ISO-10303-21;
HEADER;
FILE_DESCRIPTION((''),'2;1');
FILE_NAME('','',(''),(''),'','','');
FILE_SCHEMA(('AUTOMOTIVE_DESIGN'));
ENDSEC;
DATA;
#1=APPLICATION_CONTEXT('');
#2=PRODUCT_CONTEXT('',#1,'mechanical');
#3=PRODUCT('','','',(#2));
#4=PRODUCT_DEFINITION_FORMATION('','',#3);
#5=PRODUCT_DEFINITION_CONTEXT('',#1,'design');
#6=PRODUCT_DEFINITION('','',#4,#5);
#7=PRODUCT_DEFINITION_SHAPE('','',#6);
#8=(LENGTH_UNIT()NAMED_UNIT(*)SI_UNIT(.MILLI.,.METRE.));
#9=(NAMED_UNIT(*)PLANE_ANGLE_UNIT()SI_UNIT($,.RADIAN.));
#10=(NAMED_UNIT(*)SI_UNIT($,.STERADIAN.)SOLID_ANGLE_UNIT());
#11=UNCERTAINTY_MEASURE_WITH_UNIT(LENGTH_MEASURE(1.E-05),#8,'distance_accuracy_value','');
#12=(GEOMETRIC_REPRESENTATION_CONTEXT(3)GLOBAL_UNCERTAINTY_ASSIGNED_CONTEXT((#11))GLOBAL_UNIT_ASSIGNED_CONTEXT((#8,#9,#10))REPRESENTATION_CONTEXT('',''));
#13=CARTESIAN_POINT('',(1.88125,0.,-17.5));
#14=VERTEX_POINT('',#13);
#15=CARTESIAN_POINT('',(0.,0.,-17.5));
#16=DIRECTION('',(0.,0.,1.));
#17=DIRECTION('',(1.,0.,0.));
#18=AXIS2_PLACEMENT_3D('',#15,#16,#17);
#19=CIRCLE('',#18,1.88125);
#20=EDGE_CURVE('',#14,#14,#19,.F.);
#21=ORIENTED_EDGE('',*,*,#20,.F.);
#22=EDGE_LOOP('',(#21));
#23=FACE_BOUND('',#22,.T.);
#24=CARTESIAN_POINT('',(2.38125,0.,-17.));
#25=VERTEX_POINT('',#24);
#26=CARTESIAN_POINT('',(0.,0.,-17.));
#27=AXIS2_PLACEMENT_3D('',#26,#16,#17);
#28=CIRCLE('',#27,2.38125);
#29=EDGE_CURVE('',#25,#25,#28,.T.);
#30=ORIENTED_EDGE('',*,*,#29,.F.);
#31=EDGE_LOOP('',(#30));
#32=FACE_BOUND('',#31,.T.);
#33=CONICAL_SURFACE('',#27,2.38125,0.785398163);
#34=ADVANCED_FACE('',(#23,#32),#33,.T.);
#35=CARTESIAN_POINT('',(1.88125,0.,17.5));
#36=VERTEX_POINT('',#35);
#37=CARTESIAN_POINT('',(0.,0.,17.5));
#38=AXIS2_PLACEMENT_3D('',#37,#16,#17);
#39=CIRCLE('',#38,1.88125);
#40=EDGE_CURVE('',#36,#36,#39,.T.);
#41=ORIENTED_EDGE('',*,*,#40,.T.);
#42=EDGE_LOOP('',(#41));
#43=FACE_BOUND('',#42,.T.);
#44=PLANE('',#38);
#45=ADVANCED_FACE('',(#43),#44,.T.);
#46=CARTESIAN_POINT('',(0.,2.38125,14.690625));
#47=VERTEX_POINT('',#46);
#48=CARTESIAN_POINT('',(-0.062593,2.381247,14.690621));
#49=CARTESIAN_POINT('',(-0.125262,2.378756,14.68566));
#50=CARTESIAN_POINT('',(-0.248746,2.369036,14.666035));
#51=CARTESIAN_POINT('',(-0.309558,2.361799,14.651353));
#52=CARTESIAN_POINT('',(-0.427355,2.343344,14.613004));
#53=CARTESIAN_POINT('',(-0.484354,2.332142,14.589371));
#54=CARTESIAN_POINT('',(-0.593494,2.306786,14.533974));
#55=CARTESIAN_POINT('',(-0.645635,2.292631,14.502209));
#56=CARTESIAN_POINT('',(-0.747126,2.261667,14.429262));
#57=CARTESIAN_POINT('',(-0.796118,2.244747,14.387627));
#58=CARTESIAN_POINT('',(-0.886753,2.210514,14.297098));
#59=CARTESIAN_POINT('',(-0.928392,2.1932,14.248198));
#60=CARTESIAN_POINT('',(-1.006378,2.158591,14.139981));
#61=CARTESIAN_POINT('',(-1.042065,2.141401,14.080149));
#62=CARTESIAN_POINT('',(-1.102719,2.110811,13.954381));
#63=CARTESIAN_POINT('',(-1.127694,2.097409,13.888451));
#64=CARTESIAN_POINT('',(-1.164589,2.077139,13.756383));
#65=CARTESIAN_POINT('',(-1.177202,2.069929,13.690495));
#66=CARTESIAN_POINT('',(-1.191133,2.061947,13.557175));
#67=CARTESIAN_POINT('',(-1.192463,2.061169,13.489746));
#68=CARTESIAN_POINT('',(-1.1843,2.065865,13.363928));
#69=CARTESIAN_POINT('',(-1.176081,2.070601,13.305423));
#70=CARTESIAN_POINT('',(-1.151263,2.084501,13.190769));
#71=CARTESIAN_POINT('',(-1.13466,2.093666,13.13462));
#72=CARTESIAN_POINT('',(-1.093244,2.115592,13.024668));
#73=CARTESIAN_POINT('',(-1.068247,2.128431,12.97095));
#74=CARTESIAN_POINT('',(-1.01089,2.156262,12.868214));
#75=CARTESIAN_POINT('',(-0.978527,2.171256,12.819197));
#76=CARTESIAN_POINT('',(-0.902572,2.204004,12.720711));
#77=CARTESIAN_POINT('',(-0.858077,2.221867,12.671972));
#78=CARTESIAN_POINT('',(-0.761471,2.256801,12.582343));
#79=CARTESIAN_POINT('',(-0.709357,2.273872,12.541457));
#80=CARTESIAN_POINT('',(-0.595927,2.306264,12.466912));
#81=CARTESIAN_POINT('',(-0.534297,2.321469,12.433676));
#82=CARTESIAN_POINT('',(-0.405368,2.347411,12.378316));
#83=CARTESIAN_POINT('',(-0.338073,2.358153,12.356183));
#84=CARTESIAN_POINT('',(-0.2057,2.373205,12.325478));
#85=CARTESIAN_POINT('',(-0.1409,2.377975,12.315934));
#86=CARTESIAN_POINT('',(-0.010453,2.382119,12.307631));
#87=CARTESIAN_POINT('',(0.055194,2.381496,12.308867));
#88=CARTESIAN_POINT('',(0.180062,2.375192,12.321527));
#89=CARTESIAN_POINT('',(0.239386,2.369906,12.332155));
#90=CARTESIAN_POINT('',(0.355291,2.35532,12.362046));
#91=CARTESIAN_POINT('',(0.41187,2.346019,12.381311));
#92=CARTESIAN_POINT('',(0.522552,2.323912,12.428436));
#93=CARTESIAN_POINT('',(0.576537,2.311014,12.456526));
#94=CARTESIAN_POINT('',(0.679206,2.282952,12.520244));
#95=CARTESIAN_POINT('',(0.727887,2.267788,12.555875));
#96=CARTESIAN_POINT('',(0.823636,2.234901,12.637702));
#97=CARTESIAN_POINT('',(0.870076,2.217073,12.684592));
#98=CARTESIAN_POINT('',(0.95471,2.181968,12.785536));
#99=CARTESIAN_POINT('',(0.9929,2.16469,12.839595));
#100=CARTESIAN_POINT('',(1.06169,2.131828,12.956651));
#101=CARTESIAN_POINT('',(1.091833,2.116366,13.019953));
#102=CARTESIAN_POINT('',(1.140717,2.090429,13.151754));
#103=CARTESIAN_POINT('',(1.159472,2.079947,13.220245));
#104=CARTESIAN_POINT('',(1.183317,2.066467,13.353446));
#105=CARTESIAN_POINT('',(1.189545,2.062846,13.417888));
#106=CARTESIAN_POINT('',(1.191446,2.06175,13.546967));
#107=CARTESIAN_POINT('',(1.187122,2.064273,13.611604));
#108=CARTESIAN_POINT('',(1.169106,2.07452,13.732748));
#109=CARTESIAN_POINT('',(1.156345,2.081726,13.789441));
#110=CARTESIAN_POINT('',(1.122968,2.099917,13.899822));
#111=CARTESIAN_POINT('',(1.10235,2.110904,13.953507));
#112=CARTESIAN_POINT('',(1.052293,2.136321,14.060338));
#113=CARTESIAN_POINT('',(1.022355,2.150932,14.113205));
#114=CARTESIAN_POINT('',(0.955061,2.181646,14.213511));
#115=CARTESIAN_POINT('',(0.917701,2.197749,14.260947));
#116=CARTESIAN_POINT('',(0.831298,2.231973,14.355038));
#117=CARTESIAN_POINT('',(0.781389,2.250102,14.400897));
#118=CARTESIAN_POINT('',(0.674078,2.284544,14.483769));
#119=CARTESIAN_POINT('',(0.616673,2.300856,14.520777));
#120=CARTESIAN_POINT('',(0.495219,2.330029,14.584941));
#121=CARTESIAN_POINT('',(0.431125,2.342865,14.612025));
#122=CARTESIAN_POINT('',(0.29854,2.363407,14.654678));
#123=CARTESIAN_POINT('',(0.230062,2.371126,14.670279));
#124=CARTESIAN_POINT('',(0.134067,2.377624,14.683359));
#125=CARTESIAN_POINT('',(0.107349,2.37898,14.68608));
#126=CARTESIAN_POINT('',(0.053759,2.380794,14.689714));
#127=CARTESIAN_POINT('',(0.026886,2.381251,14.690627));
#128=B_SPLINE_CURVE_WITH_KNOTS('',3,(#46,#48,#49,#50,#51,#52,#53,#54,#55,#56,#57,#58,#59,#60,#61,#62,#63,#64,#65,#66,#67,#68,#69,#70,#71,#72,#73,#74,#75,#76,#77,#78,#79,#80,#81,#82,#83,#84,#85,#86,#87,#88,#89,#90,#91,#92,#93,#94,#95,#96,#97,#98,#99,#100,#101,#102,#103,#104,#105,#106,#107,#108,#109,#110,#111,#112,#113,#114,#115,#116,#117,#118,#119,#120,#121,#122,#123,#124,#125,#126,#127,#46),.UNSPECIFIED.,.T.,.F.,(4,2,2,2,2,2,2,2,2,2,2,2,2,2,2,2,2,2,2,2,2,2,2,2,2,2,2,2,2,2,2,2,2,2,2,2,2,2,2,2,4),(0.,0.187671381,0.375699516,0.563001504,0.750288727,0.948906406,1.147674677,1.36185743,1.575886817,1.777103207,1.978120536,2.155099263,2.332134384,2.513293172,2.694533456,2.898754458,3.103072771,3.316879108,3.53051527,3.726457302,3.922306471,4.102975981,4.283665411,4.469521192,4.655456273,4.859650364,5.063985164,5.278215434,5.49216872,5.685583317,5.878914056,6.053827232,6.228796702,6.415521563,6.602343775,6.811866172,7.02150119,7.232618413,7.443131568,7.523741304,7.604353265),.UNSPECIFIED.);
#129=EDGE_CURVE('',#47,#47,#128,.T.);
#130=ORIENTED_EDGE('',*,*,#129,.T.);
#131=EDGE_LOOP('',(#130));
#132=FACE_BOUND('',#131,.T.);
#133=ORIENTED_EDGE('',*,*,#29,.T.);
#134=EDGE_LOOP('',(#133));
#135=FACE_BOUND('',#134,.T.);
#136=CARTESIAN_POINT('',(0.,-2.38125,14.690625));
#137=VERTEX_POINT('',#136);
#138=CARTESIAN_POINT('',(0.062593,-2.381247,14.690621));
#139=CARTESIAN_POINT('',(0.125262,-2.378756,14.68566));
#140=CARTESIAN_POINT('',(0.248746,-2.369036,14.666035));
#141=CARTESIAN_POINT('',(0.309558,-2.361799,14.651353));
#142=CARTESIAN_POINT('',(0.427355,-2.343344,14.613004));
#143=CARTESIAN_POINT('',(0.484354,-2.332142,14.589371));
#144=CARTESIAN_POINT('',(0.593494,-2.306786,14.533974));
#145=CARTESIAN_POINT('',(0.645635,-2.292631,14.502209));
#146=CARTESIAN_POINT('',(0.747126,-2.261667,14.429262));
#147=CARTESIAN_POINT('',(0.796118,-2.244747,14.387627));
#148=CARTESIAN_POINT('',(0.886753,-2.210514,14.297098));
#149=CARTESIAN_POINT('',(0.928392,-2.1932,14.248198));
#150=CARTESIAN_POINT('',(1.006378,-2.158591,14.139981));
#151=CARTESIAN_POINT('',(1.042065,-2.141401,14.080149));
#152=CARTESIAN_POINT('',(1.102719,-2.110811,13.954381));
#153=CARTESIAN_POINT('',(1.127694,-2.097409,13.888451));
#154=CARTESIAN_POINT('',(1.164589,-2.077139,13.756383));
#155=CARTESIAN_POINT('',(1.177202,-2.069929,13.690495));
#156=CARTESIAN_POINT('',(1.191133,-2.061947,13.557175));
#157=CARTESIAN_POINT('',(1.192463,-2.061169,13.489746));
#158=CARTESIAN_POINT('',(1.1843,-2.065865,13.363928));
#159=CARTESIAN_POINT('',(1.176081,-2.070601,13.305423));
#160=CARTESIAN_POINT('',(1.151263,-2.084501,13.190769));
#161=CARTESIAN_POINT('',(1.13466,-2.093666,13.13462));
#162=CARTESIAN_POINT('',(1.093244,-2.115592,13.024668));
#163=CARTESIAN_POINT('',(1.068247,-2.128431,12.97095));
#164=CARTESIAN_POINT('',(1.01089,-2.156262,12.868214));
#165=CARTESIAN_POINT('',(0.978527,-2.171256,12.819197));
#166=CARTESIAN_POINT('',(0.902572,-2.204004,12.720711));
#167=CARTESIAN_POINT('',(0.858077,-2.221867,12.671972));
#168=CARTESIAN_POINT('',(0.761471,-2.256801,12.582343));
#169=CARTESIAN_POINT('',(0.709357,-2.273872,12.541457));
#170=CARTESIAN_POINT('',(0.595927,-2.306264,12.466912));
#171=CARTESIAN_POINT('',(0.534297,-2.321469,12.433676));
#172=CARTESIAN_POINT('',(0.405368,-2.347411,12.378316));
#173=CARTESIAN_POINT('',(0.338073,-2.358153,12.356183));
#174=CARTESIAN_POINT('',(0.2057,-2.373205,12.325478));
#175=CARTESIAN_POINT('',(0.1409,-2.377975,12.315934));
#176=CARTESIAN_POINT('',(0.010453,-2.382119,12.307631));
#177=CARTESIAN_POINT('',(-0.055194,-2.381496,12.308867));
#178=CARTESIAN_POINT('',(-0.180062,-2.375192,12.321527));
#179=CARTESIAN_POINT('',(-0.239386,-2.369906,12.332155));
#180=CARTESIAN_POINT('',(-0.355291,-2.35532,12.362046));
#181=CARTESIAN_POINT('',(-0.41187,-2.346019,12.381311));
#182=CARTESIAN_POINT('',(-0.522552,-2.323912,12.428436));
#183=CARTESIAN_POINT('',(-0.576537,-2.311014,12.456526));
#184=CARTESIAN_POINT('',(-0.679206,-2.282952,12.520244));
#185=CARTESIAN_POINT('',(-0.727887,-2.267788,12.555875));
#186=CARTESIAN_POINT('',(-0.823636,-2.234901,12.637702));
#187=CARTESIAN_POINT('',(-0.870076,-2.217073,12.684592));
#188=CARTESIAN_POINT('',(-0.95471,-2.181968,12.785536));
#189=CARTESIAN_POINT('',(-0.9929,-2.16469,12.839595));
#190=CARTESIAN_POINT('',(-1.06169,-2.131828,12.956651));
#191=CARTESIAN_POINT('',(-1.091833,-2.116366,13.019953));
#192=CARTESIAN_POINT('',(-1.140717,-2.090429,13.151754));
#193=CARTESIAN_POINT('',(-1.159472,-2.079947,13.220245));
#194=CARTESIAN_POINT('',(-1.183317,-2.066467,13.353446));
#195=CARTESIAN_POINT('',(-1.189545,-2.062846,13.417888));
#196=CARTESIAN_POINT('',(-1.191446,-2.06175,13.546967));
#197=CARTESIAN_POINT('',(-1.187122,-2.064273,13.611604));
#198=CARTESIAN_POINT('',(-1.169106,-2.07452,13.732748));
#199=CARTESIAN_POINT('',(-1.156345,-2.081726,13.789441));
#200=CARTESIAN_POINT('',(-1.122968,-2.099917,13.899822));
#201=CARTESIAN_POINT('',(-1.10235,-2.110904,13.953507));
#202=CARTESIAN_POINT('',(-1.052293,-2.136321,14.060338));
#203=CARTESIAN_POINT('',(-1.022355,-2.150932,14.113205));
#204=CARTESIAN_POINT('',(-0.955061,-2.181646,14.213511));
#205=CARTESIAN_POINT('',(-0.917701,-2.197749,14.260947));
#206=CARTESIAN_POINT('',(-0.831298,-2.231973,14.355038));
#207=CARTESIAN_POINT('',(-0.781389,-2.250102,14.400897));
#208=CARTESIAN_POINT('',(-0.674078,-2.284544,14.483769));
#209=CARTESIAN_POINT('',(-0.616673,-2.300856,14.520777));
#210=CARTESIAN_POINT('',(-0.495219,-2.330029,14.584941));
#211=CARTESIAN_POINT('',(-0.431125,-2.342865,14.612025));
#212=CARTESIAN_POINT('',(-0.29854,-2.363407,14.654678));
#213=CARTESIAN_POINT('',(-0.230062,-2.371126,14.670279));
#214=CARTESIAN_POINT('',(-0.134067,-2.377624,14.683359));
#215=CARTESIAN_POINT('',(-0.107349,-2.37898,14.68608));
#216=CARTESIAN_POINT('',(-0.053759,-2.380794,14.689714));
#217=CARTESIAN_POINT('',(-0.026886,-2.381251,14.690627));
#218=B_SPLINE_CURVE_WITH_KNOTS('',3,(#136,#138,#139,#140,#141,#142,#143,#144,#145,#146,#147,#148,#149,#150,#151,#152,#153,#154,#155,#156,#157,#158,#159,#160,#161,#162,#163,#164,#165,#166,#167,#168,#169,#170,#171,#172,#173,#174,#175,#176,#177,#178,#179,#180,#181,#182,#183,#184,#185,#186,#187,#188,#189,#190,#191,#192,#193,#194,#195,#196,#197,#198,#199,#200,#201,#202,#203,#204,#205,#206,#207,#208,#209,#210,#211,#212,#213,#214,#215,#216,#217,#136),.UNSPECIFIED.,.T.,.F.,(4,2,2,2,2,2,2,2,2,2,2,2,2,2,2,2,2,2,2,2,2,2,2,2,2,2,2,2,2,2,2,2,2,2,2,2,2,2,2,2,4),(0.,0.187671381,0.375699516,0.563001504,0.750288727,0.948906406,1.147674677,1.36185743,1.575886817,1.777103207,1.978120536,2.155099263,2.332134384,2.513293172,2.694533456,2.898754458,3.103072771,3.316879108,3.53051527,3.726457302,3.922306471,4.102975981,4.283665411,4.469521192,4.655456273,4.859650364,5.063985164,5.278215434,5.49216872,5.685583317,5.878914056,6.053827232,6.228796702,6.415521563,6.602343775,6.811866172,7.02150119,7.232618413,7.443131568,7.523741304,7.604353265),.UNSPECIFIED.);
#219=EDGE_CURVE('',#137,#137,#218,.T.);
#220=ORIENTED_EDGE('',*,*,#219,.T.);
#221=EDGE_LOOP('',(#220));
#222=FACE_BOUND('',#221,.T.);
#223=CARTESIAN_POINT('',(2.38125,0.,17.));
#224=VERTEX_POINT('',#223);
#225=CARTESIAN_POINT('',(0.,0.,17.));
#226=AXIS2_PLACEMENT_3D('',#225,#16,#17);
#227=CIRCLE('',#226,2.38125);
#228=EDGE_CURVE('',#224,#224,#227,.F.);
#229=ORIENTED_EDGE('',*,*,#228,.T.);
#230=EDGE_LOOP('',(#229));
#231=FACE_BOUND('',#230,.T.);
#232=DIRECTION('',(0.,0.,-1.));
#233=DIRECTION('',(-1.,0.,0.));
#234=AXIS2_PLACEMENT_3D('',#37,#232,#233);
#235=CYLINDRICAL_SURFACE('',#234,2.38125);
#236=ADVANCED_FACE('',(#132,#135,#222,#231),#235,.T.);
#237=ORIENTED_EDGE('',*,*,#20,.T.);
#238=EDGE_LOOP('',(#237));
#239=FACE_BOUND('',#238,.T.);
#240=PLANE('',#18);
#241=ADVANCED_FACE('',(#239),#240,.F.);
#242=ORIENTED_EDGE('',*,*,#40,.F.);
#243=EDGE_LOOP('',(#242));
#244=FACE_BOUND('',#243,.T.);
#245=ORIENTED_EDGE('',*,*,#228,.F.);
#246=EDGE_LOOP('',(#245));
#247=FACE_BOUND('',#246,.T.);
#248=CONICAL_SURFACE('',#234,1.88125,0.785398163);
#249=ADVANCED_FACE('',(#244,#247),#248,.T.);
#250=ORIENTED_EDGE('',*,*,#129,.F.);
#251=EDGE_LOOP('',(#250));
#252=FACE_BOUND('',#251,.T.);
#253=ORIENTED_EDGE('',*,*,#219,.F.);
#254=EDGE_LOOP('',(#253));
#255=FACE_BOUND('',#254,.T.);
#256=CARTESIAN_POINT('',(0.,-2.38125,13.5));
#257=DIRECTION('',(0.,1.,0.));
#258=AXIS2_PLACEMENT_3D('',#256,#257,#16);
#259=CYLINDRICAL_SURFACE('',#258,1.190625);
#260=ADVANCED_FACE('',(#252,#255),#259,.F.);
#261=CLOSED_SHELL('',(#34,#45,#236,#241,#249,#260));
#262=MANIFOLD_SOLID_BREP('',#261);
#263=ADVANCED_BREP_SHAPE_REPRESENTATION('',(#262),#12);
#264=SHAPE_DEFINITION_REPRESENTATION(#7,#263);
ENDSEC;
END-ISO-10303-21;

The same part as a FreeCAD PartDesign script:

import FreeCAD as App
import Part
import Sketcher

V = App.Vector


def edges_at(feature, points):
    """Names of the edges that pass closest to the given points."""
    edges = feature.Shape.Edges
    near = lambda p: min(range(len(edges)), key=lambda i: edges[i].distToShape(Part.Vertex(*p))[0])
    return sorted({f"Edge{near(p) + 1}" for p in points})

doc = App.newDocument("Part")
body = doc.addObject("PartDesign::Body", "Body")

# Sketch on XY plane
sketch1 = body.newObject("Sketcher::SketchObject", "Sketch")
sketch1.AttachmentSupport = (doc.getObject("XY_Plane"), [""])
sketch1.MapMode = "FlatFace"
sketch1.addGeometry(Part.Circle(V(0, 0, 0), V(0, 0, 1), 2.4), False)
sketch1.addConstraint(Sketcher.Constraint("Coincident", 0, 3, -1, 1))
sketch1.addConstraint(Sketcher.Constraint("Diameter", 0, 4.7625))
pad1 = body.newObject("PartDesign::Pad", "Pad")
pad1.Profile = sketch1
pad1.Length = 35
pad1.Midplane = True

# Sketch on XZ plane
sketch2 = body.newObject("Sketcher::SketchObject", "Sketch001")
sketch2.AttachmentSupport = (doc.getObject("XZ_Plane"), [""])
sketch2.MapMode = "FlatFace"
sketch2.addGeometry(Part.Circle(V(0, 13.5, 0), V(0, 0, 1), 1.2), False)
sketch2.addConstraint(Sketcher.Constraint("PointOnObject", 0, 3, -2))
sketch2.addConstraint(Sketcher.Constraint("DistanceY", -1, 1, 0, 3, 13.5))
sketch2.addConstraint(Sketcher.Constraint("Diameter", 0, 2.38125))
pocket1 = body.newObject("PartDesign::Pocket", "Pocket")
pocket1.Profile = sketch2
pocket1.Type = "ThroughAll"
pocket1.Midplane = True
doc.recompute()

chamfer = body.newObject("PartDesign::Chamfer", "Chamfer")
chamfer.Base = (pocket1, edges_at(pocket1, [(-2.381, 0, -17.5), (-2.381, 0, 17.5)]))
chamfer.Size = 0.5

doc.recompute()
